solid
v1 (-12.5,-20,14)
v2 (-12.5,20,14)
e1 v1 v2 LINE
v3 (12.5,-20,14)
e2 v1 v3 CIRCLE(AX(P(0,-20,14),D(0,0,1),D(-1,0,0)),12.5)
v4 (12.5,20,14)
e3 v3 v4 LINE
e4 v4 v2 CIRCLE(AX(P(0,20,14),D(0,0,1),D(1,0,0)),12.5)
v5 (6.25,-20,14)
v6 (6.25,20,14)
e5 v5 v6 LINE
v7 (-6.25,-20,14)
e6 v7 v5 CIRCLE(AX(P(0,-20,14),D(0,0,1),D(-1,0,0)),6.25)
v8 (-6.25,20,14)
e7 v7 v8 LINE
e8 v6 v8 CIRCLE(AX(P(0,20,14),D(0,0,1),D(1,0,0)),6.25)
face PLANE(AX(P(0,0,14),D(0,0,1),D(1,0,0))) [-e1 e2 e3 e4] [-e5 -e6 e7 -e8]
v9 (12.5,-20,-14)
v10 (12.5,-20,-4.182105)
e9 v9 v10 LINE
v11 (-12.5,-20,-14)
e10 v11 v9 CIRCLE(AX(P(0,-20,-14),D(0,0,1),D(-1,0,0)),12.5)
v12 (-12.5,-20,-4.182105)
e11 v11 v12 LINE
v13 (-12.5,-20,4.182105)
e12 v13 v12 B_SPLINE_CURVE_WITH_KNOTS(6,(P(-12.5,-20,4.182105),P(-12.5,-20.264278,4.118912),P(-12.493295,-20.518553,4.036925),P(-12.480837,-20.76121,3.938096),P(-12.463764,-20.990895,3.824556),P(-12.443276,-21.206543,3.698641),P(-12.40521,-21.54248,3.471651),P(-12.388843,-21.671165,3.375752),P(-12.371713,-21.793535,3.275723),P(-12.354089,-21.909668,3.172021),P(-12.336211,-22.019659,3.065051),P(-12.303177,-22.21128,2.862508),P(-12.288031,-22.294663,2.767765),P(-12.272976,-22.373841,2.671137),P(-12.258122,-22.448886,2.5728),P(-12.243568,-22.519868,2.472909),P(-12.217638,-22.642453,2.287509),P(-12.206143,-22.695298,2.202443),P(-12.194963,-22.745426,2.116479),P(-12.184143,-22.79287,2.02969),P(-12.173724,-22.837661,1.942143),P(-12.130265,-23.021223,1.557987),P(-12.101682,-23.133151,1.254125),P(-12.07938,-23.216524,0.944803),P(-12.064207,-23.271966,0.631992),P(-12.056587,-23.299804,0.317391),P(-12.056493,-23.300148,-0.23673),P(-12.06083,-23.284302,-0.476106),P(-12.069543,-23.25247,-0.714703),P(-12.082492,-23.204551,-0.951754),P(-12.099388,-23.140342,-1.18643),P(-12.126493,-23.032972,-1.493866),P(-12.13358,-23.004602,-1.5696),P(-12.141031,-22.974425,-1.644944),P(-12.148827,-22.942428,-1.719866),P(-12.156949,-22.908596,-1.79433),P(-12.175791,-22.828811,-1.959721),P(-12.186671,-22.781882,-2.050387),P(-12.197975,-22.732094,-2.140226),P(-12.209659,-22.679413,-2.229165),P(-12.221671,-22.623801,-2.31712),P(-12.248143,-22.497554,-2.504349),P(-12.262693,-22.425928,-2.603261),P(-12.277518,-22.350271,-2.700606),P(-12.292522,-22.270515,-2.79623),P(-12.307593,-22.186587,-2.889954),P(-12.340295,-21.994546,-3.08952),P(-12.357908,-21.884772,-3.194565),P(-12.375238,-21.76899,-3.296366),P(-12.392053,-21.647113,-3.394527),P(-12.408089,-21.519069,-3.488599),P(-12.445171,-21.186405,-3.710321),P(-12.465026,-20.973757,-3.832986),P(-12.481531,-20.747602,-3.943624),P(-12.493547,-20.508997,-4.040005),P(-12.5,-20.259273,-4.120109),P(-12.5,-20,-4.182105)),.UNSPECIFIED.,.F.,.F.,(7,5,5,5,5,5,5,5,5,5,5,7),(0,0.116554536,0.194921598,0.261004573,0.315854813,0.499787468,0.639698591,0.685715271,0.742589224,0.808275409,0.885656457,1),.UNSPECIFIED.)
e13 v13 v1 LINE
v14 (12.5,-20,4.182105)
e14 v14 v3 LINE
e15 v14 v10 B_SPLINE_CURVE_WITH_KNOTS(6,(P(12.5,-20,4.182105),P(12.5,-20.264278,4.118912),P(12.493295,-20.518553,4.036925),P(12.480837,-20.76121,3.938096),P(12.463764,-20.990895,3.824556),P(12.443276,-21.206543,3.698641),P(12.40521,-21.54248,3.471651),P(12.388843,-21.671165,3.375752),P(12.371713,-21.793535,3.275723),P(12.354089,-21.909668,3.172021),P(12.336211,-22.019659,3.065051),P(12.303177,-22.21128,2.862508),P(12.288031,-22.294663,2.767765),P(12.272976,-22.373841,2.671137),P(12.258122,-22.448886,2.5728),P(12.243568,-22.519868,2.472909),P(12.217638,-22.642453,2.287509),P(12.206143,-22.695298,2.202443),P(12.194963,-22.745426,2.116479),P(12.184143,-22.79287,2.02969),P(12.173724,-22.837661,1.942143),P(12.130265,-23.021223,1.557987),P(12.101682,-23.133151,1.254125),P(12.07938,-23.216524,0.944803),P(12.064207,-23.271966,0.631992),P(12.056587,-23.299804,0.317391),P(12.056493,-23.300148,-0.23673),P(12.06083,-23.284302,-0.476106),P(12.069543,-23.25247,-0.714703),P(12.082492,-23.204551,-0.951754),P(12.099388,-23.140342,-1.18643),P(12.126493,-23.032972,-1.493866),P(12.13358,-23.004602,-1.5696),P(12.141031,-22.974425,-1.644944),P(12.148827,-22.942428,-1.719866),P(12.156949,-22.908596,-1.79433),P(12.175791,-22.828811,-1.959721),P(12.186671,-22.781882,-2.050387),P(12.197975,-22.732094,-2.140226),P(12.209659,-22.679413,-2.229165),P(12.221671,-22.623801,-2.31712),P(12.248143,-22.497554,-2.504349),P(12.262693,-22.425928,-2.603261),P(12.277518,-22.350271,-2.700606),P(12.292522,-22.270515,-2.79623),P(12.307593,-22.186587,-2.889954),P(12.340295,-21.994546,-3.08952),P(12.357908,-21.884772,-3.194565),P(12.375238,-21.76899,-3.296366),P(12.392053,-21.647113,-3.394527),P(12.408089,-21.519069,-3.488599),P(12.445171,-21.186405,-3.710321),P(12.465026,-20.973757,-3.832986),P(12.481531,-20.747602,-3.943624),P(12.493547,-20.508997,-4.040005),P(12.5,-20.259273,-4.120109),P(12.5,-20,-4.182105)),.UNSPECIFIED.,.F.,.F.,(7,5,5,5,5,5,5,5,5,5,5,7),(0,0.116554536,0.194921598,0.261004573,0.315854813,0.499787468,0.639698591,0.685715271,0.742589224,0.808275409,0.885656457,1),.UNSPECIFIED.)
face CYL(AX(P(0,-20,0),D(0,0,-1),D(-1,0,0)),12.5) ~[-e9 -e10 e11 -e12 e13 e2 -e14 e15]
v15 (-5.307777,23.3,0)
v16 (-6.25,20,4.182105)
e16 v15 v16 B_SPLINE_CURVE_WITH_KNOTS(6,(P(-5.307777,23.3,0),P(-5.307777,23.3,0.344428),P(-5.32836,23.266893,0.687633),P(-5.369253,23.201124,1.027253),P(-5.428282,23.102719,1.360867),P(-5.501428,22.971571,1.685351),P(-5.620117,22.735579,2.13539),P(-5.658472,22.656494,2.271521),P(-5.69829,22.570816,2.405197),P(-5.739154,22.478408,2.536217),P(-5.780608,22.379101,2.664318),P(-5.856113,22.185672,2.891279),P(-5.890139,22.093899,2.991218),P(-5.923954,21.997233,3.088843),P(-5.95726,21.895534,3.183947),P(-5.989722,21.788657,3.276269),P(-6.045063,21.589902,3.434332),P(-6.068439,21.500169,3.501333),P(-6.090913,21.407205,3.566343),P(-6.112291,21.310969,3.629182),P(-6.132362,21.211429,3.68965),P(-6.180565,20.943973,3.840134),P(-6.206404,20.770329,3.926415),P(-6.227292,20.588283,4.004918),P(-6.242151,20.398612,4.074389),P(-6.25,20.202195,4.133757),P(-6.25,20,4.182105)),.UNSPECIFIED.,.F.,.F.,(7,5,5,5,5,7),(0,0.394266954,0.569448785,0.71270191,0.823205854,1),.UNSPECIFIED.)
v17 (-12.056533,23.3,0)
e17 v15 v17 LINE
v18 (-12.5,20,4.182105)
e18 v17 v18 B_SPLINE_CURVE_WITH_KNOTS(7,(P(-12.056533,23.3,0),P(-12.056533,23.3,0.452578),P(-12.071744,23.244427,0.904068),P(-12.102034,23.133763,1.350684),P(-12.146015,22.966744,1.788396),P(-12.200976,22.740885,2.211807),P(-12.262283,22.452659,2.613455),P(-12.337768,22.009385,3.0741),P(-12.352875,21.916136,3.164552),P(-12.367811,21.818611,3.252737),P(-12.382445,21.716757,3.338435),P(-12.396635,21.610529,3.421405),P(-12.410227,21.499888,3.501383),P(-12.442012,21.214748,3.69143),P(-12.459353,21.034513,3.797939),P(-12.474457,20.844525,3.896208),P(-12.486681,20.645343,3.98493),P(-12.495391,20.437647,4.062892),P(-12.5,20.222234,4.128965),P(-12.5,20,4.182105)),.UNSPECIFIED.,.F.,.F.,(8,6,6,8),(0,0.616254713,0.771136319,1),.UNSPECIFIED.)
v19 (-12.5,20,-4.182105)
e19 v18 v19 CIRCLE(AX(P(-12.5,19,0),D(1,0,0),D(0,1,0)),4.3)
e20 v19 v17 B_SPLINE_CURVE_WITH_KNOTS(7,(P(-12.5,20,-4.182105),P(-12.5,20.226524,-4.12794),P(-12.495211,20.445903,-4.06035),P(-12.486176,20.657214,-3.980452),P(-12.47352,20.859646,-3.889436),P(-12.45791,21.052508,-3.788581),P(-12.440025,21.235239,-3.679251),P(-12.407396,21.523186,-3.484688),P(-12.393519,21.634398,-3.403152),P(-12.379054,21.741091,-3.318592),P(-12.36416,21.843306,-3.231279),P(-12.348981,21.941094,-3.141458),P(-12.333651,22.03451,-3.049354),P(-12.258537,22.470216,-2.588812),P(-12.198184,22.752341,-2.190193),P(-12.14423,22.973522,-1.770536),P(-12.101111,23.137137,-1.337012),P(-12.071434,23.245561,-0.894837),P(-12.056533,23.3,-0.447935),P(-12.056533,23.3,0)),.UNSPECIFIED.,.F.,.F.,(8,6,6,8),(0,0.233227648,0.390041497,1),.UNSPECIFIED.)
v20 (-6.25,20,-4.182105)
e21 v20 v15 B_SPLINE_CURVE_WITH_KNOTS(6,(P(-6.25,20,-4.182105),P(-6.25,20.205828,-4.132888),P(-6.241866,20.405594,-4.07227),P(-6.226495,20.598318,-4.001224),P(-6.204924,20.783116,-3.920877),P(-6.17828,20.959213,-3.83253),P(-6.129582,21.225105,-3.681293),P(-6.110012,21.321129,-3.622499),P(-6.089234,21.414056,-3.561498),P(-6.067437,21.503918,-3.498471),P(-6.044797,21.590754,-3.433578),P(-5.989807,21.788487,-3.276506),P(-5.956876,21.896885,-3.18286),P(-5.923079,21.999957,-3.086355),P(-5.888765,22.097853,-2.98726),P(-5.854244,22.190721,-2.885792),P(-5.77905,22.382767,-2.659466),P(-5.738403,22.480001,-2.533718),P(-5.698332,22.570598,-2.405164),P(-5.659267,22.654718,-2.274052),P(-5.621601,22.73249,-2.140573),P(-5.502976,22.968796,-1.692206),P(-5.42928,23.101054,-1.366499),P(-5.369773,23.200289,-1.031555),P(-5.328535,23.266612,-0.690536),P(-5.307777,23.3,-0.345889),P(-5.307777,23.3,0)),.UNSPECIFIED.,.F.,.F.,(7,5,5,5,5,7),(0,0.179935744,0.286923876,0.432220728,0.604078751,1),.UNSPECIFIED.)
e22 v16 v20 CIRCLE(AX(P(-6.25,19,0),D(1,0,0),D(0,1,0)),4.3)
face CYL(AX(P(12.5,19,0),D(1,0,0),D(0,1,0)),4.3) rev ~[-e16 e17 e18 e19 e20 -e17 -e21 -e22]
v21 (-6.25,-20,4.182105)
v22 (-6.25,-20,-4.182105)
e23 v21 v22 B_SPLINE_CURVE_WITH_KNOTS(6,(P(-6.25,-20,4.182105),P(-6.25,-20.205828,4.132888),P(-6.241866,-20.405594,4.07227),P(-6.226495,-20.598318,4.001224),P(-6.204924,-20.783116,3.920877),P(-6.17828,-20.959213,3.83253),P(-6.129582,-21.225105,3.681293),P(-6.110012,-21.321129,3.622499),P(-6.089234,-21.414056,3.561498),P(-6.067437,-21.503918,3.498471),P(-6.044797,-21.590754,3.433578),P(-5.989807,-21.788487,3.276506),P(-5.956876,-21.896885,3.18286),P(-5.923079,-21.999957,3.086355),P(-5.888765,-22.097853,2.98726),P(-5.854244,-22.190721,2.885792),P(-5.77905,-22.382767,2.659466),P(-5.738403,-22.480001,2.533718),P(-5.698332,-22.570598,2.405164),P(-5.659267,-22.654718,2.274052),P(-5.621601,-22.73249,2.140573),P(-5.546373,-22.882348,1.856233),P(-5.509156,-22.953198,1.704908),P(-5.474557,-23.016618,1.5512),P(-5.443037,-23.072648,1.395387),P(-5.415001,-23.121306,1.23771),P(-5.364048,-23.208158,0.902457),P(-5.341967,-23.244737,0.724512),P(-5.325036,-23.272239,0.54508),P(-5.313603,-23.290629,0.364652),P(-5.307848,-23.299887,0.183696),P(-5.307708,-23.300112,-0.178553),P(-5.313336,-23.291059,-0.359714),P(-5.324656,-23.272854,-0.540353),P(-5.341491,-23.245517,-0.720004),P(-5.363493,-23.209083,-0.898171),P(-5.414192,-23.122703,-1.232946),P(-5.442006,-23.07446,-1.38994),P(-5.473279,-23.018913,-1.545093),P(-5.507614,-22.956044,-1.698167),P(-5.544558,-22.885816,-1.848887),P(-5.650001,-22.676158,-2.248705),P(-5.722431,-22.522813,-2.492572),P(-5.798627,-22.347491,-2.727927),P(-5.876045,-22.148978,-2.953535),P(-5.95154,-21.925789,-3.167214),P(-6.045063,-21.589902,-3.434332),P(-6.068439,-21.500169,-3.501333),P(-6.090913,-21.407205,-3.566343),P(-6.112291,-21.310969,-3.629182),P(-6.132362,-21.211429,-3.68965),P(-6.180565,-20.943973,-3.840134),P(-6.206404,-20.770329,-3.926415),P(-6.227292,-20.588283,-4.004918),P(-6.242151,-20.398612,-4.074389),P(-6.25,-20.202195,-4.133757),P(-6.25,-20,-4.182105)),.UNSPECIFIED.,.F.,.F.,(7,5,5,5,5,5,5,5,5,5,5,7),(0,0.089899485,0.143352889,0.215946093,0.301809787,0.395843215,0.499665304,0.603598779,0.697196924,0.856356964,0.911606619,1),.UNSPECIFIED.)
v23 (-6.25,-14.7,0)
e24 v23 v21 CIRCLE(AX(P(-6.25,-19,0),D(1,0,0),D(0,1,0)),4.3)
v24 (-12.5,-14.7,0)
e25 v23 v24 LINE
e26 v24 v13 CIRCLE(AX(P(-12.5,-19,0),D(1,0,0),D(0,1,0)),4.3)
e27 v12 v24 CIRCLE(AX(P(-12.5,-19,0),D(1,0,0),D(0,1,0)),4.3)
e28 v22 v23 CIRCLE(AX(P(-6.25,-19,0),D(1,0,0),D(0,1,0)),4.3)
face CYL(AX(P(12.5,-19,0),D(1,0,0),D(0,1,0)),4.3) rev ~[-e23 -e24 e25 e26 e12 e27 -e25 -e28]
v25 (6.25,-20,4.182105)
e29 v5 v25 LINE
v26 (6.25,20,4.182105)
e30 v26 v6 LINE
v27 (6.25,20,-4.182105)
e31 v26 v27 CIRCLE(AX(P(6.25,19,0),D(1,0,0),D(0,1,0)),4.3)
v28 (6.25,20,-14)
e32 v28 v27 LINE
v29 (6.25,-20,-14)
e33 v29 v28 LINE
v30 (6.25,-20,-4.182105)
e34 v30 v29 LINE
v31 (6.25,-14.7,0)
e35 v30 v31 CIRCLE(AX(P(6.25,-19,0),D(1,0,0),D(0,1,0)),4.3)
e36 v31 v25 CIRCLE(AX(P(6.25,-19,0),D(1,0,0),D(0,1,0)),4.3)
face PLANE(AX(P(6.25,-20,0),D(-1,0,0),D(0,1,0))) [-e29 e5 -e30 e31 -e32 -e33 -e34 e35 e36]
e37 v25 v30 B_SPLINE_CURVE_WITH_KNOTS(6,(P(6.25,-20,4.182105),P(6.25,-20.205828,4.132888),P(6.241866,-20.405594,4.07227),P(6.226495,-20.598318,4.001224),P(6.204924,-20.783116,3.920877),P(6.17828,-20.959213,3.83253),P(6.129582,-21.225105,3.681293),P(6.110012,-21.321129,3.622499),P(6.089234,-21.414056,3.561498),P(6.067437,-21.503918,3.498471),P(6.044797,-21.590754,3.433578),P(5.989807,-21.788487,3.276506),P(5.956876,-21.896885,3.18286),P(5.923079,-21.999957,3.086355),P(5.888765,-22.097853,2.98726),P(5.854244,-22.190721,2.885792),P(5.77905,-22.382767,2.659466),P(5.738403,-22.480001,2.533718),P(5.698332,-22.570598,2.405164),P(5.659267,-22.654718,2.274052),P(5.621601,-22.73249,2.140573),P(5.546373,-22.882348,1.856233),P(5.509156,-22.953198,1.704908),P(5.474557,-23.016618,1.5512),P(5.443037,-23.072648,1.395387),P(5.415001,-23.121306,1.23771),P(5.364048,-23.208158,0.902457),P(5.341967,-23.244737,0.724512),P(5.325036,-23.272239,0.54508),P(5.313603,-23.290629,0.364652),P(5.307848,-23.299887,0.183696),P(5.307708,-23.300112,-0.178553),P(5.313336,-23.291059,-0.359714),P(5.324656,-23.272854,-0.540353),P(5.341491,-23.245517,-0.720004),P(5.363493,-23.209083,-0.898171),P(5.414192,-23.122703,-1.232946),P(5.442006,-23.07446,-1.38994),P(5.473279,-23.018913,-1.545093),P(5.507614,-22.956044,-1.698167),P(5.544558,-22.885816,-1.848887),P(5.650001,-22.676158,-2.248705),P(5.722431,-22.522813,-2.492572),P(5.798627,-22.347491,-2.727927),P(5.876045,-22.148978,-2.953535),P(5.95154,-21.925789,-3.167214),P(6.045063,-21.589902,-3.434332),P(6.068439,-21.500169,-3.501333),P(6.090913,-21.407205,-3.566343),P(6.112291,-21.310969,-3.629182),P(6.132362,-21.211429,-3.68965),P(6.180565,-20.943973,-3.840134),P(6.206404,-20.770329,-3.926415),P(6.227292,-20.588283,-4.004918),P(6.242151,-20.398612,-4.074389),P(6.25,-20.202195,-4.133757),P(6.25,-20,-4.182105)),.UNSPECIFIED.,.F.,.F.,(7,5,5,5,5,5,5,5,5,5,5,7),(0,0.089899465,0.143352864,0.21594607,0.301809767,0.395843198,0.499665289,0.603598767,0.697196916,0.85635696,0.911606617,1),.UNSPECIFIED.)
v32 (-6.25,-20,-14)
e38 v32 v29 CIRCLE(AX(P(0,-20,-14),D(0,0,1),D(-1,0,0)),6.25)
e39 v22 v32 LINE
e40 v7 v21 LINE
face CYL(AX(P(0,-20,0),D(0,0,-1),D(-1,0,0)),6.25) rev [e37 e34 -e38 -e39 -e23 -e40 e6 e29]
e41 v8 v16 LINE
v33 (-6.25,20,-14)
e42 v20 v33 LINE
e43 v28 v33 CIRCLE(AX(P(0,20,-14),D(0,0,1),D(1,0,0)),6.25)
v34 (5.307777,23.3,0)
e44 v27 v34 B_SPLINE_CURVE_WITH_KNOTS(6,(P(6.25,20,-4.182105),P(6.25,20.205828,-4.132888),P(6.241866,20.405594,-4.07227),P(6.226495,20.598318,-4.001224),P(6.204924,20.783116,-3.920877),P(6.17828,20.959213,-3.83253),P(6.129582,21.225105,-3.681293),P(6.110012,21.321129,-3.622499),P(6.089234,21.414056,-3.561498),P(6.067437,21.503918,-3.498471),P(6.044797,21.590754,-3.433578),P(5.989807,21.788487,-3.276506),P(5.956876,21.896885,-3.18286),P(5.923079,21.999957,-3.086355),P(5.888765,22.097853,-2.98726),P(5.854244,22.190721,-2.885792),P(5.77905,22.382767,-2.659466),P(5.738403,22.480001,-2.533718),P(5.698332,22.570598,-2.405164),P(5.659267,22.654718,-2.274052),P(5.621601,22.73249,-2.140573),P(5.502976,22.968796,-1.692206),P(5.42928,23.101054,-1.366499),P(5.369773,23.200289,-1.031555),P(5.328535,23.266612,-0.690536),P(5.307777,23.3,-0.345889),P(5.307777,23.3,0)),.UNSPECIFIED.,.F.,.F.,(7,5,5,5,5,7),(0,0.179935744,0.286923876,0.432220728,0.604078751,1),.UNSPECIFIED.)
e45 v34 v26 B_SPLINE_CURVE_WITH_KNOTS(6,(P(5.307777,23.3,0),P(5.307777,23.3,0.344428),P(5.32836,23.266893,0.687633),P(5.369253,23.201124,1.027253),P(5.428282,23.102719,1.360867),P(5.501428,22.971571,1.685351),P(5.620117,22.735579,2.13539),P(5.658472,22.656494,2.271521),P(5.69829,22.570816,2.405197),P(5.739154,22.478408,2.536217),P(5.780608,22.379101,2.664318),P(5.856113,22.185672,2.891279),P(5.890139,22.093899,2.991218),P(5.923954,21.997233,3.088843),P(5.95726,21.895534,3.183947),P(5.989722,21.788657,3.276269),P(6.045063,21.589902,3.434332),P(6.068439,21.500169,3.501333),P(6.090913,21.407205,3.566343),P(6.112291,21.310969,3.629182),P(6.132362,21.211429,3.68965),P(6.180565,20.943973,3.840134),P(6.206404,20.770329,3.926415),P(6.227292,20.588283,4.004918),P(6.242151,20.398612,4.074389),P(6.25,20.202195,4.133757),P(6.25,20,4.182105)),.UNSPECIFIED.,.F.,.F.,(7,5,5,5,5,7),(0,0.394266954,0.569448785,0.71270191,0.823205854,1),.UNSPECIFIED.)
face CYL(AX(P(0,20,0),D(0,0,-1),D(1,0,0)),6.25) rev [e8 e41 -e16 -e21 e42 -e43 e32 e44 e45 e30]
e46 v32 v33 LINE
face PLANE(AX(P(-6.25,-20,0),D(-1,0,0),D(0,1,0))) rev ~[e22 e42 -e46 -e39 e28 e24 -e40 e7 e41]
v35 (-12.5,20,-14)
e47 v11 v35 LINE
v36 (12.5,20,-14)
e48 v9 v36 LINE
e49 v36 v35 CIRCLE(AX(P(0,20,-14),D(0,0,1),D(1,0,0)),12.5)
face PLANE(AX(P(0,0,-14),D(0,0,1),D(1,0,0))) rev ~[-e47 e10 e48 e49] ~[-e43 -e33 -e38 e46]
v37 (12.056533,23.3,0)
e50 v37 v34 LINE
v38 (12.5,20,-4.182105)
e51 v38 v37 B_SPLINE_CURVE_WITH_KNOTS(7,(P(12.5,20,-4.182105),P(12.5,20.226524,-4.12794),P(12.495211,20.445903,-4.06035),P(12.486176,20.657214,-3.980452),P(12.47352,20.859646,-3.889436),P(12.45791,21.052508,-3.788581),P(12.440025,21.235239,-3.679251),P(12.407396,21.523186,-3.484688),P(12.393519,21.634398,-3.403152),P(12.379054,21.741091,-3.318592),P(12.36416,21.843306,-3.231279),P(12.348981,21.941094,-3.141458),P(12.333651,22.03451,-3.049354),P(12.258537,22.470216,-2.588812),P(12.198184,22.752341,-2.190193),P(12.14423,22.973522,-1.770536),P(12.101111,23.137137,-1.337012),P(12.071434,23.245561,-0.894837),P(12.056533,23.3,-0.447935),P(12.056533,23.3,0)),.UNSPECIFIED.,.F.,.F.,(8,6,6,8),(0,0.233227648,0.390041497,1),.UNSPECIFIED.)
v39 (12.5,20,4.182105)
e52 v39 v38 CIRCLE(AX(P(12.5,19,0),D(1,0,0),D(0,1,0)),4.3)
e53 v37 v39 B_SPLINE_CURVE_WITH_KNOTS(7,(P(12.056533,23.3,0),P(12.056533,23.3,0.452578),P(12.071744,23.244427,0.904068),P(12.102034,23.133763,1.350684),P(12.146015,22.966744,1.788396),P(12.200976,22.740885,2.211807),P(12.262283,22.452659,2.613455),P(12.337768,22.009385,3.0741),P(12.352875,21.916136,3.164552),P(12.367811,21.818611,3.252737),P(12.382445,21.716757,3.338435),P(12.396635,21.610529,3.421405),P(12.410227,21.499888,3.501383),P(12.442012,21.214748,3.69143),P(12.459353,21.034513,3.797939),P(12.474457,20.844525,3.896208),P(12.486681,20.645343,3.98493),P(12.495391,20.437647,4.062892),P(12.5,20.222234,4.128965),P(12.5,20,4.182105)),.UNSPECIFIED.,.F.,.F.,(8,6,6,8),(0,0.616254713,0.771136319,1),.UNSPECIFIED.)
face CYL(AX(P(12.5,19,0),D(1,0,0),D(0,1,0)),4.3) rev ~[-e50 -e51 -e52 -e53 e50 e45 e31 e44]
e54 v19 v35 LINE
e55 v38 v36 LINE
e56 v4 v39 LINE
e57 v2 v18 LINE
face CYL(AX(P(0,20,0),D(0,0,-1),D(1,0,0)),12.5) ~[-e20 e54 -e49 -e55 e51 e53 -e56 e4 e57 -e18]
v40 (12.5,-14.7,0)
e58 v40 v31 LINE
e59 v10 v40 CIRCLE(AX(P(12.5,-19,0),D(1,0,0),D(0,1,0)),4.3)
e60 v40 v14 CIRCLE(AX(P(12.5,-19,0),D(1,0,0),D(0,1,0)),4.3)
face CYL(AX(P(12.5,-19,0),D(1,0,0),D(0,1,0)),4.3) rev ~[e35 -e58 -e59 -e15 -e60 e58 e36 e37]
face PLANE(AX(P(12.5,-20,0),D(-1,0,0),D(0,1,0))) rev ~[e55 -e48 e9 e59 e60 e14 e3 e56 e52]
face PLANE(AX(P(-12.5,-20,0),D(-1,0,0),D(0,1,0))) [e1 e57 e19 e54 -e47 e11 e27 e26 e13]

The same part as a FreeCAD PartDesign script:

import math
import FreeCAD as App
import Part
import Sketcher
Q = App.Units.Quantity

doc = App.newDocument("Part")
body = doc.addObject("PartDesign::Body", "Body")

# Sketch on XY plane
sketch1 = body.newObject("Sketcher::SketchObject", "Sketch")
sketch1.AttachmentSupport = (doc.getObject("XY_Plane"), [""])
sketch1.MapMode = "FlatFace"
sketch1.addGeometry([
    Part.LineSegment(App.Vector(-12, 20, 0), App.Vector(-12, -20, 0)),  # 0
    Part.ArcOfCircle(Part.Circle(App.Vector(0, -20, 0), App.Vector(0, 0, 1), 12), math.radians(180), math.radians(360)),  # 1
    Part.LineSegment(App.Vector(12, -20, 0), App.Vector(12, 20, 0)),  # 2
    Part.ArcOfCircle(Part.Circle(App.Vector(0, 20, 0), App.Vector(0, 0, 1), 12), math.radians(0), math.radians(180)),  # 3
    Part.ArcOfCircle(Part.Circle(App.Vector(0, 20, 0), App.Vector(0, 0, 1), 6), math.radians(0), math.radians(180)),  # 4
    Part.LineSegment(App.Vector(6, 20, 0), App.Vector(6, -20, 0)),  # 5
    Part.ArcOfCircle(Part.Circle(App.Vector(0, -20, 0), App.Vector(0, 0, 1), 6), math.radians(180), math.radians(360)),  # 6
    Part.LineSegment(App.Vector(-6, -20, 0), App.Vector(-6, 20, 0)),  # 7
], False)
sketch1.addConstraint([
    Sketcher.Constraint("Tangent", 0, 2, 1, 1),
    Sketcher.Constraint("Tangent", 1, 2, 2, 1),
    Sketcher.Constraint("Tangent", 2, 2, 3, 1),
    Sketcher.Constraint("Tangent", 3, 2, 0, 1),
    Sketcher.Constraint("Tangent", 4, 1, 5, 1),
    Sketcher.Constraint("Tangent", 5, 2, 6, 2),
    Sketcher.Constraint("Tangent", 6, 1, 7, 1),
    Sketcher.Constraint("Tangent", 7, 2, 4, 2),
    Sketcher.Constraint("Vertical", 0),
    Sketcher.Constraint("Vertical", 2),
    Sketcher.Constraint("Vertical", 5),
    Sketcher.Constraint("Vertical", 7),
    Sketcher.Constraint("Coincident", 4, 3, 3, 3),
    Sketcher.Constraint("Symmetric", 1, 3, 3, 3, -1, 1),
    Sketcher.Constraint("Horizontal", 6, 3, 0, 2),
    Sketcher.Constraint("Radius", 1, Q("12.5 mm")),
    Sketcher.Constraint("DistanceY", 0, 2, 0, 1, Q("40 mm")),
    Sketcher.Constraint("Radius", 4, Q("6.25 mm")),
])
pad1 = body.newObject("PartDesign::Pad", "Pad")
pad1.Profile = sketch1
pad1.Length = 28
pad1.Midplane = True

# Sketch on YZ plane
sketch2 = body.newObject("Sketcher::SketchObject", "Sketch001")
sketch2.AttachmentSupport = (doc.getObject("YZ_Plane"), [""])
sketch2.MapMode = "FlatFace"
sketch2.AttachmentOffset = App.Placement(App.Vector(0, 0, 12.5), App.Rotation())
sketch2.addGeometry([
    Part.Circle(App.Vector(19, 0, 0), App.Vector(0, 0, 1), 4.3),
    Part.Circle(App.Vector(-19, 0, 0), App.Vector(0, 0, 1), 4.3),
], False)
sketch2.addConstraint([
    Sketcher.Constraint("Equal", 0, 1),
    Sketcher.Constraint("Symmetric", 0, 3, 1, 3, -1, 1),
    Sketcher.Constraint("PointOnObject", 0, 3, -1),
    Sketcher.Constraint("Diameter", 0, Q("8.6 mm")),
    Sketcher.Constraint("DistanceX", 1, 3, 0, 3, Q("38 mm")),
])
pocket1 = body.newObject("PartDesign::Pocket", "Pocket")
pocket1.Profile = sketch2
pocket1.Length = 28

doc.recompute()
